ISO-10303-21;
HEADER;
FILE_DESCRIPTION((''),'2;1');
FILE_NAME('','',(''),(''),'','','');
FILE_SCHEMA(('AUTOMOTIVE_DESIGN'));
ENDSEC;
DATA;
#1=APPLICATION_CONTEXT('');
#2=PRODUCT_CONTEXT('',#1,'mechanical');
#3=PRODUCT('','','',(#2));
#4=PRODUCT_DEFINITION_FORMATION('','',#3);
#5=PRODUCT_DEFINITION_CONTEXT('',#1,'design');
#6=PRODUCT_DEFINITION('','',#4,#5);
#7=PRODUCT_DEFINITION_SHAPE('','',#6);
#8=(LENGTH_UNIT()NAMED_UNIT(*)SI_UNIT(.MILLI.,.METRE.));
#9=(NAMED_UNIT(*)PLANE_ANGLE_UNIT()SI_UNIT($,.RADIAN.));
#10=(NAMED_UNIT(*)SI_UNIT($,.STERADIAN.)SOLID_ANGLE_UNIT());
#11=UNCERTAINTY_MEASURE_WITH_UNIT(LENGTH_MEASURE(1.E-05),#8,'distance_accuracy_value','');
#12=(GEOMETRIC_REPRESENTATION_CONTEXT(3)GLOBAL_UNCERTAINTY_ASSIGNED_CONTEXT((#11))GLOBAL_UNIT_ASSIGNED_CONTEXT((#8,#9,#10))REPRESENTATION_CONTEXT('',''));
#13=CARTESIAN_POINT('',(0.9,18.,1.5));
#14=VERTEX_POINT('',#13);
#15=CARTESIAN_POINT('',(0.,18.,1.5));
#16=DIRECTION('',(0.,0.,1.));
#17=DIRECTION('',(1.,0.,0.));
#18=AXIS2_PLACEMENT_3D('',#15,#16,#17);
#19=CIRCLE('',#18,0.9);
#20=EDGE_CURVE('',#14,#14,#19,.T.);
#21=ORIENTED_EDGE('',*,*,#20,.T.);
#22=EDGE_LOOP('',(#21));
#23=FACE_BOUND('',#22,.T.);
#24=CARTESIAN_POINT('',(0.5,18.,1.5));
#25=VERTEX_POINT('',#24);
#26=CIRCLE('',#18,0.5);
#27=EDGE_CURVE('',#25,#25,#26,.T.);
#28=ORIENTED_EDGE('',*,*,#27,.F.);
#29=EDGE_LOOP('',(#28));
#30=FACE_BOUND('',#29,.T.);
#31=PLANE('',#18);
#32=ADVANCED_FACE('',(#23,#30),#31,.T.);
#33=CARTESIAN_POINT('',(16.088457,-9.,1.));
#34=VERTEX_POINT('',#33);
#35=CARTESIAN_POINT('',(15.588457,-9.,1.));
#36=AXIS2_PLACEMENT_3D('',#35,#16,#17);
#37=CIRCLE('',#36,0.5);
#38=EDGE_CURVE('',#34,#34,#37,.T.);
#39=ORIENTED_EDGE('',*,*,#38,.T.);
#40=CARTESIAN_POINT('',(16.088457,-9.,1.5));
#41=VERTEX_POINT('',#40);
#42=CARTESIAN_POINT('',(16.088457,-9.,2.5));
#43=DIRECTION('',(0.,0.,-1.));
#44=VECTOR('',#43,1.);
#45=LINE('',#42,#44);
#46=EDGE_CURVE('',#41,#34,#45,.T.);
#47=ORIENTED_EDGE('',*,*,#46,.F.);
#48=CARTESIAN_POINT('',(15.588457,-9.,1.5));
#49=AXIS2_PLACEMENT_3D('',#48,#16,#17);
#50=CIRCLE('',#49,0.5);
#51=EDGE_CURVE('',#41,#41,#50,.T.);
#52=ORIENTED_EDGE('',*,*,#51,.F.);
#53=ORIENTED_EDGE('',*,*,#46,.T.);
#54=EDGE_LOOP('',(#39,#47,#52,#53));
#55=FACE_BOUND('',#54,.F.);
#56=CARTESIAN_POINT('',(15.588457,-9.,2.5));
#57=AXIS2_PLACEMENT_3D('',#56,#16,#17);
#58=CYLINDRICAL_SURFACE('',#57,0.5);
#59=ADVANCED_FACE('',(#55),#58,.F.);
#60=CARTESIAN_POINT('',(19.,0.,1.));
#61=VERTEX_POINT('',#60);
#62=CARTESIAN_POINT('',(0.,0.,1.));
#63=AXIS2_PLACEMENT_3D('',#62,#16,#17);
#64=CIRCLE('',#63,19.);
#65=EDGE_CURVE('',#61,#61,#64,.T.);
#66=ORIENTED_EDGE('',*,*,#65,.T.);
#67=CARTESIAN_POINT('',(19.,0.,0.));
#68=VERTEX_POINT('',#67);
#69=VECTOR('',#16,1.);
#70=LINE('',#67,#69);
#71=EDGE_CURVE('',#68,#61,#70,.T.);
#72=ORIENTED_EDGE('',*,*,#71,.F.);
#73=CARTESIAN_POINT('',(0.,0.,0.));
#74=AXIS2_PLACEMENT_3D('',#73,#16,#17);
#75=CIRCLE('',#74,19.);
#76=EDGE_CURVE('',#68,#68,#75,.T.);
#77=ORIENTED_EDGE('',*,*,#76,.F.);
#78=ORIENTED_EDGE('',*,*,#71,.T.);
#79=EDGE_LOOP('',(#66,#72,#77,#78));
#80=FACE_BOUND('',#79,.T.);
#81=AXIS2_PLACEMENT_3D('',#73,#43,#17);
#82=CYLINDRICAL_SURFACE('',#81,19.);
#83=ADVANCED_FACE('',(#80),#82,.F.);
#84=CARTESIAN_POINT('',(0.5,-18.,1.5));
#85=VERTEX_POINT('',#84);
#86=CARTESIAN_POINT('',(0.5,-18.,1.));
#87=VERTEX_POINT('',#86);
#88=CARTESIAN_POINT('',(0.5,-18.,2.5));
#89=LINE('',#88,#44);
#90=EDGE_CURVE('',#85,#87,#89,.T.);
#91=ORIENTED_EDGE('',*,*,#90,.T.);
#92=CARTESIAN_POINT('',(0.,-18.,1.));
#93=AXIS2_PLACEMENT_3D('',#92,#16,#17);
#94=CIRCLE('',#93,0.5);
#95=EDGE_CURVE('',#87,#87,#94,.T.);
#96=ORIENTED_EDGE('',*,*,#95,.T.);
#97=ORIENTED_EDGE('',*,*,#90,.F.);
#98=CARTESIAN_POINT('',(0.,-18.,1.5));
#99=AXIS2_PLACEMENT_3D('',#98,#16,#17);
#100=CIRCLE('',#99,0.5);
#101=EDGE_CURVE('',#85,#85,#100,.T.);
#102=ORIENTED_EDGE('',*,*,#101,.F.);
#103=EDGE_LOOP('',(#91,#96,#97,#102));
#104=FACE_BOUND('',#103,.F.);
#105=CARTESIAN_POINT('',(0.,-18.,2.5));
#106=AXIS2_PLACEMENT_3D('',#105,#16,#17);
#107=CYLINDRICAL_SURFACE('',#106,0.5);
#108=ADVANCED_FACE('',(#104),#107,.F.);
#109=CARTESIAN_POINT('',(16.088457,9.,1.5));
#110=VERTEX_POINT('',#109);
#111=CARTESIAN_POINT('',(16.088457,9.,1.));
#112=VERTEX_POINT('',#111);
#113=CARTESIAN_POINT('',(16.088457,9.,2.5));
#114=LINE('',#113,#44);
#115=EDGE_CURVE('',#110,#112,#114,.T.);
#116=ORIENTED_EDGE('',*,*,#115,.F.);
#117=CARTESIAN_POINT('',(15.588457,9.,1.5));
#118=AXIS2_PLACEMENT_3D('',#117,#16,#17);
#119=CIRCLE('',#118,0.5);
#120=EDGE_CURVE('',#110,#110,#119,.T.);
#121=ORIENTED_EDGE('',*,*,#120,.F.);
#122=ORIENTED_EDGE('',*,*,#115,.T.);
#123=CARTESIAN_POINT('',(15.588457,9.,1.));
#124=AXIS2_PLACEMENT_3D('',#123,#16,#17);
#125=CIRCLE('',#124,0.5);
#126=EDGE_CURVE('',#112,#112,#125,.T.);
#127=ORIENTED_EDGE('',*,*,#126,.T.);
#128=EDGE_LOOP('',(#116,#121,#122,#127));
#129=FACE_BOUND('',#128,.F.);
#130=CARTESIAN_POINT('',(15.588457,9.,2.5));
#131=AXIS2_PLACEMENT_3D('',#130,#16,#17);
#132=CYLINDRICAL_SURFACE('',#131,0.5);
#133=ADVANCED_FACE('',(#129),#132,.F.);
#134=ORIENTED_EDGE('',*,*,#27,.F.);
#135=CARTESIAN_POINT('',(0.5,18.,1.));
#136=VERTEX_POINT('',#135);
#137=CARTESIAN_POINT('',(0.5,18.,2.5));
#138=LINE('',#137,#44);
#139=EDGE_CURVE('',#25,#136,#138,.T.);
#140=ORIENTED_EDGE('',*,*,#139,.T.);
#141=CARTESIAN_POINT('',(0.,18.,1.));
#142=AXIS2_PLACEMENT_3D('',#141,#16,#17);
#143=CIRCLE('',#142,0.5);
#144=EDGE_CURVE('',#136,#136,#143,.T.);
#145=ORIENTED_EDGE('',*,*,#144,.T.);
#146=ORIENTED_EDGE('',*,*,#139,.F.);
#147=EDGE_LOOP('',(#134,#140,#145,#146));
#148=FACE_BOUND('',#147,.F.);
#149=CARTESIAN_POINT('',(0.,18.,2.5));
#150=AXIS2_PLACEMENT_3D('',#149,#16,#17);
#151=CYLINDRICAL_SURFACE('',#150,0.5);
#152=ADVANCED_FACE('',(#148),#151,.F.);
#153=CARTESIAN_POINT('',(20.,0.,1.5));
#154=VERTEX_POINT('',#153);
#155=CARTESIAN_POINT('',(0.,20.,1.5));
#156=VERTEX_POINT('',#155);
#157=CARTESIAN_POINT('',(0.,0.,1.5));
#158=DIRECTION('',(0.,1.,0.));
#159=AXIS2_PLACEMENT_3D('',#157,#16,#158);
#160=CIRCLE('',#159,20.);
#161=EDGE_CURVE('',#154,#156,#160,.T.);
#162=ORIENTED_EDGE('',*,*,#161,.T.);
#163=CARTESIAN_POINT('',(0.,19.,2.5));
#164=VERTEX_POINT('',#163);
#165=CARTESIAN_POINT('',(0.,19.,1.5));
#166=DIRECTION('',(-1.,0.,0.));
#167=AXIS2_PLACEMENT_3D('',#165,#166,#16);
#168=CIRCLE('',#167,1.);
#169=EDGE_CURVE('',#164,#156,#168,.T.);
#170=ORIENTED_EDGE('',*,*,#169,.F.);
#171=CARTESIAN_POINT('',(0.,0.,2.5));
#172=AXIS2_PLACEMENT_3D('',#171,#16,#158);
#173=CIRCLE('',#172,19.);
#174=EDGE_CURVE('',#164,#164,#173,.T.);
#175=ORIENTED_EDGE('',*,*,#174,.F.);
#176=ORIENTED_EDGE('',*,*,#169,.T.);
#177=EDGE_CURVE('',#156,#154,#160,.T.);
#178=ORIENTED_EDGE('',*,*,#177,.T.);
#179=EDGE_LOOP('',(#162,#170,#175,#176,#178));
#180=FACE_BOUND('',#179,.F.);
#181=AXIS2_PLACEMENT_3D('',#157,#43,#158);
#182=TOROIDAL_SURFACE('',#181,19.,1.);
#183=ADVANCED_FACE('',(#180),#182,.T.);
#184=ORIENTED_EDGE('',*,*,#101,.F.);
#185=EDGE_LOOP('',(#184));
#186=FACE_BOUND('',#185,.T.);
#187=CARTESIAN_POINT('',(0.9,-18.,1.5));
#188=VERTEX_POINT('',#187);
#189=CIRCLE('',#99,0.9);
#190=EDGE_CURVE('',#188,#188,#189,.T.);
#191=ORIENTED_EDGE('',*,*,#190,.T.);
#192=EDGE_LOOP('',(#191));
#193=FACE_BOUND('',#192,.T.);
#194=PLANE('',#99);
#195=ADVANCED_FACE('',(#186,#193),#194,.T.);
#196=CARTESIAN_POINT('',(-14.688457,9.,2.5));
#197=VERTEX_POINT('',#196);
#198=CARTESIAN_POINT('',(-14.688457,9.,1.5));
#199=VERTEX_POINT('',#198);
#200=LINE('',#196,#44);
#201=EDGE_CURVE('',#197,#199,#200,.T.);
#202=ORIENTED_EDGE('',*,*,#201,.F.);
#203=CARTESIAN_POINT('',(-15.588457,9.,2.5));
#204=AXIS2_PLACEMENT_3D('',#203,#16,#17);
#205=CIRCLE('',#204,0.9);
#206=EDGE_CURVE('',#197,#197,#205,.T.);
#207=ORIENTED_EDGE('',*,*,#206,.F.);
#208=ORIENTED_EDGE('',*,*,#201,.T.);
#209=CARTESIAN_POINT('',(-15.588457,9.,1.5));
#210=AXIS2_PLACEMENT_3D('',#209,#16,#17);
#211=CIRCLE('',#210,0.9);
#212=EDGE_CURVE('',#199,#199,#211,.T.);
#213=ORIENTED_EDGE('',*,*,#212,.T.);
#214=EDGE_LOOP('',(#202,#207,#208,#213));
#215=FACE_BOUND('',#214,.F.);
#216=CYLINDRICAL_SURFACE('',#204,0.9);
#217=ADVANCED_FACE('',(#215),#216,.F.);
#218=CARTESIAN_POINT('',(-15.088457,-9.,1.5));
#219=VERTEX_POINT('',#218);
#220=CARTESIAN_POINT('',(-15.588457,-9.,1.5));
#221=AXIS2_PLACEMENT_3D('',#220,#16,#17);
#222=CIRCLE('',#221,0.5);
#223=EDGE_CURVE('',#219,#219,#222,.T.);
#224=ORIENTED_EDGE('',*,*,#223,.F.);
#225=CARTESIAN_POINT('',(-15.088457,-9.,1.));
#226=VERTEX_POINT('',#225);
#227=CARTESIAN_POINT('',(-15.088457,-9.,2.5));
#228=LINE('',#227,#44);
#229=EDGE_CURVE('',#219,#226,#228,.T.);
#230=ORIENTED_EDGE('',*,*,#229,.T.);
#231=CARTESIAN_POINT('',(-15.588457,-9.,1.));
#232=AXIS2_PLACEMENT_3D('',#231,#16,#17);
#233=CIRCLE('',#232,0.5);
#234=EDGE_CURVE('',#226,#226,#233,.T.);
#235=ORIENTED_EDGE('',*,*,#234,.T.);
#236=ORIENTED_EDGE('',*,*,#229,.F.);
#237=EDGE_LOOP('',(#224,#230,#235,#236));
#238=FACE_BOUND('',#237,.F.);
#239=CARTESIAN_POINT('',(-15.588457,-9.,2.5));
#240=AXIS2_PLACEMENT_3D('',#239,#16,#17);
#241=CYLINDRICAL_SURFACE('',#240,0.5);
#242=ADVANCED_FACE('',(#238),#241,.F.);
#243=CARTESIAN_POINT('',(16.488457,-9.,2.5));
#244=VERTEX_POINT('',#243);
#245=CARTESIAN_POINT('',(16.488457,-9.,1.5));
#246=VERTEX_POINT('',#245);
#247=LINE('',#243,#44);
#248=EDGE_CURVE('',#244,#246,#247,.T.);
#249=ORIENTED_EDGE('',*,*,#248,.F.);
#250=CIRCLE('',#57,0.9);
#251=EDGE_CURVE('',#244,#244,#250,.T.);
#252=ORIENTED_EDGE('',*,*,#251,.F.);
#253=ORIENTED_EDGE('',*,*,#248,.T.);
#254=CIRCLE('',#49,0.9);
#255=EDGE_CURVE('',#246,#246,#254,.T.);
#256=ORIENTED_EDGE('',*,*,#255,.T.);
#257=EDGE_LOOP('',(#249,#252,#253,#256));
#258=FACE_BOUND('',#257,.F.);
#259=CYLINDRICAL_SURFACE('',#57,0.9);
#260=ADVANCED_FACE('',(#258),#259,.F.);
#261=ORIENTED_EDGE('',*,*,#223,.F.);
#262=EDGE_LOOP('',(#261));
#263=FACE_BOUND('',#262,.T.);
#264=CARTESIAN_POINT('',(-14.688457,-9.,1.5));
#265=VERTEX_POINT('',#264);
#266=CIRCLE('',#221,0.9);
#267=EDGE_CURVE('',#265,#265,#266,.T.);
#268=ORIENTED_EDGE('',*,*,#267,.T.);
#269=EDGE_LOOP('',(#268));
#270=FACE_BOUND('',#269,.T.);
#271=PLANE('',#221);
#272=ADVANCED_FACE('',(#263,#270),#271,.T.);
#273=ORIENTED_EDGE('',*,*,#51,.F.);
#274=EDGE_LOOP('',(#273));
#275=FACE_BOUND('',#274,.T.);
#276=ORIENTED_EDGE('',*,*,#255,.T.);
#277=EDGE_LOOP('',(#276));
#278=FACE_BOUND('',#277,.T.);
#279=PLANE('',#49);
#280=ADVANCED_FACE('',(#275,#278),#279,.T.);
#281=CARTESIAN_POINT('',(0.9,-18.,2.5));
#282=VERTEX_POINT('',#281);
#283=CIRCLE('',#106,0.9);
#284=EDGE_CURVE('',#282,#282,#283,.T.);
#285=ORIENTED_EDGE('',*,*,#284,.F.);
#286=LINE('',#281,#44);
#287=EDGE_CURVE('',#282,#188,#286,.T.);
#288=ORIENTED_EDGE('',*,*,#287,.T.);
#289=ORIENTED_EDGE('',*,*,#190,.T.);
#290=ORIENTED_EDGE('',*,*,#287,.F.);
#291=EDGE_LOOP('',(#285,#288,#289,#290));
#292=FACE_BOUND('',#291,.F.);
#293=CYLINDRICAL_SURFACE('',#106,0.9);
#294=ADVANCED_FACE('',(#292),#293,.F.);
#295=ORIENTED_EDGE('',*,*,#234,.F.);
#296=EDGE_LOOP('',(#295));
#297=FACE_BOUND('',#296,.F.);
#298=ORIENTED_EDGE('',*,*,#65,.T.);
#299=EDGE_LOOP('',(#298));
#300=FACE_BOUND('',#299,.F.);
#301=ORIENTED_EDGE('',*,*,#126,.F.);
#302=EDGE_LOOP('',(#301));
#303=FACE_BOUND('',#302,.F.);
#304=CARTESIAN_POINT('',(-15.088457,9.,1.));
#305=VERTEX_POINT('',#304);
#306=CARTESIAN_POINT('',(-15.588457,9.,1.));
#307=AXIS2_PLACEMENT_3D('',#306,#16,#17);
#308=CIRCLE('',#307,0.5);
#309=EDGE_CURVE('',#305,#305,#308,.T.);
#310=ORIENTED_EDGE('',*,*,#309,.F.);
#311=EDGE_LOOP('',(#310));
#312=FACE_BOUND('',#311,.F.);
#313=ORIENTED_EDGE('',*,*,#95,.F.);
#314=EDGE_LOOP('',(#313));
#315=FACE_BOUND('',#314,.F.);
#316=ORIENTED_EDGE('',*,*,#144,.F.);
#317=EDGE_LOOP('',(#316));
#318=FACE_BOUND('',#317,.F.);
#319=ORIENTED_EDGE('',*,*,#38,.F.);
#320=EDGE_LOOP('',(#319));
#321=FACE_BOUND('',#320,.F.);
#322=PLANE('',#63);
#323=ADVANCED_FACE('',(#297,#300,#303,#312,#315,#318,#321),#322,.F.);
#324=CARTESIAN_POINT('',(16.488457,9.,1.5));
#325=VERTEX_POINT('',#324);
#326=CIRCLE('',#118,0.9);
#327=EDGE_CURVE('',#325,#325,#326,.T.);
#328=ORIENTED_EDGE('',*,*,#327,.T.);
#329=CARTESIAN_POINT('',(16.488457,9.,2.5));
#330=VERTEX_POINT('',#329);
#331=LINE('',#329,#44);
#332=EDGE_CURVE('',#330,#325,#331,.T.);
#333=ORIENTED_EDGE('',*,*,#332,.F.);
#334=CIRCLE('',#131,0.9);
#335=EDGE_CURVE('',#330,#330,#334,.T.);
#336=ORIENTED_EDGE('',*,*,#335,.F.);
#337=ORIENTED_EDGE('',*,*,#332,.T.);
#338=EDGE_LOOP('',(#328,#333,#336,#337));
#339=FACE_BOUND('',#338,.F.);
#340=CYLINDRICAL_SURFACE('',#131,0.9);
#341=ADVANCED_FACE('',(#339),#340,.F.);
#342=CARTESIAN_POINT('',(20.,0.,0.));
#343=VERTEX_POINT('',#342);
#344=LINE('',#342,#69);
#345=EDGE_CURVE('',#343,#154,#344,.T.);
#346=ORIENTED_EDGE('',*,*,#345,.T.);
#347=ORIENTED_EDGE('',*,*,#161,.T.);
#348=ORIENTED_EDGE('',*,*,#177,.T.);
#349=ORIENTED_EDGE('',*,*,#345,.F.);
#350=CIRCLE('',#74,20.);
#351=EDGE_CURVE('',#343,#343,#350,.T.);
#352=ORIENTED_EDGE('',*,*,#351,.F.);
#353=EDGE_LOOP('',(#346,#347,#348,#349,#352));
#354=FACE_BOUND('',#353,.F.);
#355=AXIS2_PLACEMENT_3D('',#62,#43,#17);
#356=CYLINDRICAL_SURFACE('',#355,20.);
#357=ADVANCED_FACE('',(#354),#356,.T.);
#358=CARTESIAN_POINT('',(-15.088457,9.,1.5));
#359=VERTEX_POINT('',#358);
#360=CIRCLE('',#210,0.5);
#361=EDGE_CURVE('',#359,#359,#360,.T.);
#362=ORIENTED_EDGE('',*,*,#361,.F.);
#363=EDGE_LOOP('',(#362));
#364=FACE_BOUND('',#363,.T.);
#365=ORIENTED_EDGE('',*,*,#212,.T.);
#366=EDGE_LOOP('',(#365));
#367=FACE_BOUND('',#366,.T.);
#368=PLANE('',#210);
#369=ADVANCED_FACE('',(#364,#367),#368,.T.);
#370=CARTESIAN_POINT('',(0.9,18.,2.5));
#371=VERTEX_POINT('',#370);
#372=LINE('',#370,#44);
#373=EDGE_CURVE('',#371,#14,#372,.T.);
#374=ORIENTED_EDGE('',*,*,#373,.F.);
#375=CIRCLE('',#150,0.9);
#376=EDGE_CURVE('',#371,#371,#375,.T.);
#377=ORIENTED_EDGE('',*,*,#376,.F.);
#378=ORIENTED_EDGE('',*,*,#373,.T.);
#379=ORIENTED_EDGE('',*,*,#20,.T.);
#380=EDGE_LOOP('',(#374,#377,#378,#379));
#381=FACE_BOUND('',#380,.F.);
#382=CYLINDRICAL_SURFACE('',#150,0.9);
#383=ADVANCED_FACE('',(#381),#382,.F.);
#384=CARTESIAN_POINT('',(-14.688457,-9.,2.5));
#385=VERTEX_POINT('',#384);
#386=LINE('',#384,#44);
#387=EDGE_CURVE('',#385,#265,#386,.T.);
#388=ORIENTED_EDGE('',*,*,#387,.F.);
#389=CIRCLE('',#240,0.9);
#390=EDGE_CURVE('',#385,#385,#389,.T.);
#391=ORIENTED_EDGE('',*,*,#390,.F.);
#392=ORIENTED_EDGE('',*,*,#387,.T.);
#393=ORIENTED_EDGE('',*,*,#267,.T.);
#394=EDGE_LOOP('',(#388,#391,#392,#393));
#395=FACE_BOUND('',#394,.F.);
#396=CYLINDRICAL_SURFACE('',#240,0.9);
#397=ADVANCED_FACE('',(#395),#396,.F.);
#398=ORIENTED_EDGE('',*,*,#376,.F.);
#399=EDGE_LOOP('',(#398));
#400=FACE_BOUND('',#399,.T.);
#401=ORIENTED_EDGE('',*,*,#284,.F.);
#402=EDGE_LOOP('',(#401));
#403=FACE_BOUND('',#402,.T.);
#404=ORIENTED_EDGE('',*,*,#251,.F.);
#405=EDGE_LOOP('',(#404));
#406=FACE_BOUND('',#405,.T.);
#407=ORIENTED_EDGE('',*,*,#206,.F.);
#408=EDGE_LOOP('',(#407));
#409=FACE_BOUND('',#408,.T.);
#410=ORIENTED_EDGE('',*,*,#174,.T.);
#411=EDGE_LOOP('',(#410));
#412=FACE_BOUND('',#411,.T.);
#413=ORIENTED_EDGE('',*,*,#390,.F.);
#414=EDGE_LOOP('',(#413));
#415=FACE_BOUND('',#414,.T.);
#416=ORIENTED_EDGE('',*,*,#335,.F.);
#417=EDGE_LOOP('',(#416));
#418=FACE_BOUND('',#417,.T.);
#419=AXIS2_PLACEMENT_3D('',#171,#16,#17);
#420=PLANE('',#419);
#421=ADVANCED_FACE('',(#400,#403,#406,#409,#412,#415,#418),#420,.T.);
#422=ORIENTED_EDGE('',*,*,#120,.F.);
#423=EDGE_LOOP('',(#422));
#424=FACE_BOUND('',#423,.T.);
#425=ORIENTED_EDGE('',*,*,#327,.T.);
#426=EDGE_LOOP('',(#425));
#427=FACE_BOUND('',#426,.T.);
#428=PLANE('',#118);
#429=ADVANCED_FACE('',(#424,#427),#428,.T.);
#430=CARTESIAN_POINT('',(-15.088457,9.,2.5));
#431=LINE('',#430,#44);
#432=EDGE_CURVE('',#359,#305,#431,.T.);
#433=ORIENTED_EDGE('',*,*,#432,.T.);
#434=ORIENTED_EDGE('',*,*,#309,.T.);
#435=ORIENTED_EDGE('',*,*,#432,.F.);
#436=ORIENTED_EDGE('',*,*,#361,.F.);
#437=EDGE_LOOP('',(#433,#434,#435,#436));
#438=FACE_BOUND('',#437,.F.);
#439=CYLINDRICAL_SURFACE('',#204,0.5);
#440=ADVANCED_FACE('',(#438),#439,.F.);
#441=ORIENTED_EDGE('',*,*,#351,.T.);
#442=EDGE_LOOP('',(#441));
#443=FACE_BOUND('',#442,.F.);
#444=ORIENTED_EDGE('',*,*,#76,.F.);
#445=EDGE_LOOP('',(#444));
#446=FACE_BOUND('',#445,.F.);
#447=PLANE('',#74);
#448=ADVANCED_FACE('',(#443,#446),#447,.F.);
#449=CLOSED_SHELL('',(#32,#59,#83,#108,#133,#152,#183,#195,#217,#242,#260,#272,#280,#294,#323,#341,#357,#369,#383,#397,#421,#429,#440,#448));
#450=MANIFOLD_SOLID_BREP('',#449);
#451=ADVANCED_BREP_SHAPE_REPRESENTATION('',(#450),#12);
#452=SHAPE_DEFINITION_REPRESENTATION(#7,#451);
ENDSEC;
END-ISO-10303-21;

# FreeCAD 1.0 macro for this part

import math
import FreeCAD as App
import Part
import Sketcher

V = App.Vector

doc = App.newDocument("Part")
body = doc.addObject("PartDesign::Body", "Body")

# Sketch on XY plane
sketch1 = doc.addObject("Sketcher::SketchObject", "Sketch")
body.addObject(sketch1)
sketch1.AttachmentSupport = (doc.XY_Plane, [""])
sketch1.MapMode = "FlatFace"
sketch1.addGeometry([
    Part.Circle(V(0, 0, 0), V(0, 0, 1), 20),
    Part.Circle(V(0, 0, 0), V(0, 0, 1), 19),
], False)
sketch1.addConstraint([
    Sketcher.Constraint("Coincident", 0, 3, -1, 1),
    Sketcher.Constraint("Coincident", 1, 3, -1, 1),
    Sketcher.Constraint("Diameter", 0, 40.0),
    Sketcher.Constraint("Diameter", 1, 38.0),
])
pad1 = doc.addObject("PartDesign::Pad", "Pad")
body.addObject(pad1)
pad1.Profile = sketch1
pad1.Length = 1

# Sketch on XY plane
sketch2 = doc.addObject("Sketcher::SketchObject", "Sketch001")
body.addObject(sketch2)
sketch2.AttachmentSupport = (doc.XY_Plane, [""])
sketch2.MapMode = "FlatFace"
sketch2.AttachmentOffset = App.Placement(V(0, 0, 1), App.Rotation())
sketch2.addGeometry(Part.Circle(V(0, 0, 0), V(0, 0, 1), 20), False)
sketch2.addConstraint([
    Sketcher.Constraint("Coincident", 0, 3, -1, 1),
    Sketcher.Constraint("Diameter", 0, 40.0),
])
pad2 = doc.addObject("PartDesign::Pad", "Pad001")
body.addObject(pad2)
pad2.Profile = sketch2
pad2.Length = 1.5

# Sketch on XY plane
sketch3 = doc.addObject("Sketcher::SketchObject", "Sketch002")
body.addObject(sketch3)
sketch3.AttachmentSupport = (doc.XY_Plane, [""])
sketch3.MapMode = "FlatFace"
sketch3.AttachmentOffset = App.Placement(V(0, 0, 2.5), App.Rotation())
sketch3.addGeometry([
    Part.Circle(V(0, 18, 0), V(0, 0, 1), 0.5),  # 0
    Part.Circle(V(15.588457, 9, 0), V(0, 0, 1), 0.5),  # 1
    Part.Circle(V(15.588457, -9, 0), V(0, 0, 1), 0.5),  # 2
    Part.Circle(V(0, -18, 0), V(0, 0, 1), 0.5),  # 3
    Part.Circle(V(-15.588457, -9, 0), V(0, 0, 1), 0.5),  # 4
    Part.Circle(V(-15.588457, 9, 0), V(0, 0, 1), 0.5),  # 5
], False)
sketch3.addConstraint([
    Sketcher.Constraint("Equal", 0, 1),
    Sketcher.Constraint("Equal", 1, 2),
    Sketcher.Constraint("Equal", 2, 3),
    Sketcher.Constraint("Equal", 3, 4),
    Sketcher.Constraint("Equal", 4, 5),
    Sketcher.Constraint("Symmetric", 0, 3, 3, 3, -1, 1),
    Sketcher.Constraint("Symmetric", 1, 3, 4, 3, -1, 1),
    Sketcher.Constraint("Symmetric", 2, 3, 5, 3, -1, 1),
    Sketcher.Constraint("Symmetric", 2, 3, 4, 3, -2),
    Sketcher.Constraint("PointOnObject", 0, 3, -2),
    Sketcher.Constraint("Diameter", 0, 1.0),
    Sketcher.Constraint("DistanceY", -1, 1, 0, 3, 18.0),
    Sketcher.Constraint("DistanceY", -1, 1, 1, 3, 9.0),
    Sketcher.Constraint("DistanceX", -1, 1, 1, 3, 15.588457),
])
pocket1 = doc.addObject("PartDesign::Pocket", "Pocket")
body.addObject(pocket1)
pocket1.Profile = sketch3
pocket1.Type = "ThroughAll"

# Sketch on XY plane
sketch4 = doc.addObject("Sketcher::SketchObject", "Sketch003")
body.addObject(sketch4)
sketch4.AttachmentSupport = (doc.XY_Plane, [""])
sketch4.MapMode = "FlatFace"
sketch4.AttachmentOffset = App.Placement(V(0, 0, 2.5), App.Rotation())
sketch4.addGeometry([
    Part.Circle(V(0, 18, 0), V(0, 0, 1), 0.9),  # 0
    Part.Circle(V(-15.588457, 9, 0), V(0, 0, 1), 0.9),  # 1
    Part.Circle(V(-15.588457, -9, 0), V(0, 0, 1), 0.9),  # 2
    Part.Circle(V(0, -18, 0), V(0, 0, 1), 0.9),  # 3
    Part.Circle(V(15.588457, -9, 0), V(0, 0, 1), 0.9),  # 4
    Part.Circle(V(15.588457, 9, 0), V(0, 0, 1), 0.9),  # 5
], False)
sketch4.addConstraint([
    Sketcher.Constraint("Equal", 0, 1),
    Sketcher.Constraint("Equal", 1, 2),
    Sketcher.Constraint("Equal", 2, 3),
    Sketcher.Constraint("Equal", 3, 4),
    Sketcher.Constraint("Equal", 4, 5),
    Sketcher.Constraint("Symmetric", 0, 3, 3, 3, -1, 1),
    Sketcher.Constraint("Symmetric", 1, 3, 4, 3, -1, 1),
    Sketcher.Constraint("Symmetric", 2, 3, 5, 3, -1, 1),
    Sketcher.Constraint("Symmetric", 2, 3, 4, 3, -2),
    Sketcher.Constraint("PointOnObject", 0, 3, -2),
    Sketcher.Constraint("Diameter", 0, 1.8),
    Sketcher.Constraint("DistanceY", -1, 1, 0, 3, 18.0),
    Sketcher.Constraint("DistanceY", -1, 1, 1, 3, 9.0),
    Sketcher.Constraint("DistanceX", 1, 3, -1, 1, 15.588457),
])
pocket2 = doc.addObject("PartDesign::Pocket", "Pocket001")
body.addObject(pocket2)
pocket2.Profile = sketch4
pocket2.Length = 1

# Sketch on YZ plane
sketch5 = doc.addObject("Sketcher::SketchObject", "Sketch004")
body.addObject(sketch5)
sketch5.AttachmentSupport = (doc.YZ_Plane, [""])
sketch5.MapMode = "FlatFace"
sketch5.addGeometry([
    Part.LineSegment(V(20, 1.5, 0), V(20, 2.5, 0)),
    Part.LineSegment(V(20, 2.5, 0), V(19, 2.5, 0)),
    Part.ArcOfCircle(Part.Circle(V(19, 1.5, 0), V(0, 0, 1), 1), math.radians(0), math.radians(90)),
], False)
sketch5.addConstraint([
    Sketcher.Constraint("Coincident", 0, 2, 1, 1),
    Sketcher.Constraint("Tangent", 1, 2, 2, 2),
    Sketcher.Constraint("Tangent", 2, 1, 0, 1),
    Sketcher.Constraint("Vertical", 0),
    Sketcher.Constraint("Horizontal", 1),
    Sketcher.Constraint("Radius", 2, 1.0),
    Sketcher.Constraint("DistanceX", -1, 1, 2, 3, 19.0),
    Sketcher.Constraint("DistanceY", -1, 1, 2, 3, 1.5),
])
groove = doc.addObject("PartDesign::Groove", "Groove")
body.addObject(groove)
groove.Profile = sketch5
groove.ReferenceAxis = (sketch5, ["V_Axis"])
groove.Angle = 360

doc.recompute()
